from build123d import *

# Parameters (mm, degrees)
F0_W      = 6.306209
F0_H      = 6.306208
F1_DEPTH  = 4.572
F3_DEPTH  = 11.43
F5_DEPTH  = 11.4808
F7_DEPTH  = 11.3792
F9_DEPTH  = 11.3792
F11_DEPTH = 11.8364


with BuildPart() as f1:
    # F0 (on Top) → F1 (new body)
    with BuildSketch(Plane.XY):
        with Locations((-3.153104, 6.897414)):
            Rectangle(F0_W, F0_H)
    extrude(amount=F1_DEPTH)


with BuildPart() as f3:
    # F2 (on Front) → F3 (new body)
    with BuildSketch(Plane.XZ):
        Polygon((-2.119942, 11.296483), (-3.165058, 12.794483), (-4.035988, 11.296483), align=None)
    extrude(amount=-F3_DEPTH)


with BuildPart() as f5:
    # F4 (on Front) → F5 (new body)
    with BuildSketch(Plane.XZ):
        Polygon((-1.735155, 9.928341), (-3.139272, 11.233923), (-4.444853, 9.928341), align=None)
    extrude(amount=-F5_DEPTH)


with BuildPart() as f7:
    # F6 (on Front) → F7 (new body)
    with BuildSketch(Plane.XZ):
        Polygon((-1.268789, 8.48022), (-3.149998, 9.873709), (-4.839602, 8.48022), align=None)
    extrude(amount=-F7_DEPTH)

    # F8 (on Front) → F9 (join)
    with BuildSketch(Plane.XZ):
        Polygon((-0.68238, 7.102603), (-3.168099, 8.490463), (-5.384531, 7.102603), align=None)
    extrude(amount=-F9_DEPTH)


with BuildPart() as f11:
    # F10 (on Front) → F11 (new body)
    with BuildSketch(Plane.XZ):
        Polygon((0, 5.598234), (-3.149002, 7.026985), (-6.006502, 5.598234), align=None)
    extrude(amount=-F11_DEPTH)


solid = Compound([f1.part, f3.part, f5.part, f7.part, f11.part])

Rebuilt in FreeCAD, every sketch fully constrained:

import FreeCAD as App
import Part
import Sketcher
from FreeCAD import Vector
Q = App.Units.Quantity


def add_polygon(sketch, points):
    """Adds a closed chain of lines whose ends are joined by coincident constraints."""
    first, n = sketch.GeometryCount, len(points)
    for a, b in zip(points, points[1:] + points[:1]):
        sketch.addGeometry(Part.LineSegment(App.Vector(*a, 0), App.Vector(*b, 0)), False)
    for i in range(n):
        sketch.addConstraint(Sketcher.Constraint("Coincident", first + i, 2, first + (i + 1) % n, 1))

doc = App.newDocument("Part")
body = doc.addObject("PartDesign::Body", "Body")

sketch1 = doc.addObject("Sketcher::SketchObject", "Sketch")
body.addObject(sketch1)
sketch1.AttachmentSupport = (doc.XY_Plane, [""])
sketch1.MapMode = "FlatFace"
add_polygon(sketch1, [(-6.306209, 10.050518), (-6.306209, 3.74431), (0, 3.74431), (0, 10.050518)])
sketch1.addConstraint(Sketcher.Constraint("Vertical", 0))
sketch1.addConstraint(Sketcher.Constraint("Horizontal", 1))
sketch1.addConstraint(Sketcher.Constraint("Vertical", 2))
sketch1.addConstraint(Sketcher.Constraint("Horizontal", 3))
sketch1.addConstraint(Sketcher.Constraint("PointOnObject", 1, 2, -2))
sketch1.addConstraint(Sketcher.Constraint("Equal", 3, 0))
sketch1.addConstraint(Sketcher.Constraint("DistanceX", 1, 1, 1, 2, Q("6.306209 mm")))
sketch1.addConstraint(Sketcher.Constraint("DistanceY", -1, 1, 0, 2, Q("3.74431 mm")))
pad1 = doc.addObject("PartDesign::Pad", "Pad")
body.addObject(pad1)
pad1.Profile = sketch1
pad1.Length = Q("0.18 in")
body2 = doc.addObject("PartDesign::Body", "Body001")

sketch2 = doc.addObject("Sketcher::SketchObject", "Sketch001")
body2.addObject(sketch2)
sketch2.AttachmentSupport = (doc.getObject("XZ_Plane001"), [""])
sketch2.MapMode = "FlatFace"
add_polygon(sketch2, [(-2.119942, 11.296483), (-3.165058, 12.794483), (-4.035988, 11.296483)])
sketch2.addConstraint(Sketcher.Constraint("Horizontal", 2))
sketch2.addConstraint(Sketcher.Constraint("DistanceY", 1, 2, 0, 2, Q("1.498 mm")))
sketch2.addConstraint(Sketcher.Constraint("Distance", 1, Q("1.732779 mm")))
sketch2.addConstraint(Sketcher.Constraint("DistanceX", 2, 1, 2, 2, Q("1.916046 mm")))
sketch2.addConstraint(Sketcher.Constraint("DistanceX", 0, 2, -1, 1, Q("3.165058 mm")))
sketch2.addConstraint(Sketcher.Constraint("DistanceY", -1, 1, 0, 2, Q("12.794483 mm")))
pad2 = doc.addObject("PartDesign::Pad", "Pad001")
body2.addObject(pad2)
pad2.Profile = sketch2
pad2.Length = Q("0.45 in")
pad2.Reversed = True
body3 = doc.addObject("PartDesign::Body", "Body002")

sketch3 = doc.addObject("Sketcher::SketchObject", "Sketch002")
body3.addObject(sketch3)
sketch3.AttachmentSupport = (doc.getObject("XZ_Plane002"), [""])
sketch3.MapMode = "FlatFace"
add_polygon(sketch3, [(-1.735155, 9.928341), (-3.139272, 11.233923), (-4.444853, 9.928341)])
sketch3.addConstraint(Sketcher.Constraint("Horizontal", 2))
sketch3.addConstraint(Sketcher.Constraint("DistanceX", 2, 1, 2, 2, Q("2.709698 mm")))
sketch3.addConstraint(Sketcher.Constraint("Distance", 1, Q("1.846371 mm")))
sketch3.addConstraint(Sketcher.Constraint("DistanceY", -1, 1, 1, 2, Q("9.928341 mm")))
sketch3.addConstraint(Sketcher.Constraint("DistanceX", 1, 2, 0, 2, Q("1.305581 mm")))
sketch3.addConstraint(Sketcher.Constraint("DistanceX", 0, 2, -1, 1, Q("3.139272 mm")))
pad3 = doc.addObject("PartDesign::Pad", "Pad002")
body3.addObject(pad3)
pad3.Profile = sketch3
pad3.Length = Q("0.452 in")
pad3.Reversed = True
body4 = doc.addObject("PartDesign::Body", "Body003")

sketch4 = doc.addObject("Sketcher::SketchObject", "Sketch003")
body4.addObject(sketch4)
sketch4.AttachmentSupport = (doc.getObject("XZ_Plane003"), [""])
sketch4.MapMode = "FlatFace"
add_polygon(sketch4, [(-1.268789, 8.48022), (-3.149998, 9.873709), (-4.839602, 8.48022)])
sketch4.addConstraint(Sketcher.Constraint("Horizontal", 2))
sketch4.addConstraint(Sketcher.Constraint("DistanceX", 0, 2, -1, 1, Q("3.149998 mm")))
sketch4.addConstraint(Sketcher.Constraint("Distance", 1, Q("2.190108 mm")))
sketch4.addConstraint(Sketcher.Constraint("DistanceX", 2, 1, 2, 2, Q("3.570813 mm")))
sketch4.addConstraint(Sketcher.Constraint("DistanceY", -1, 1, 0, 2, Q("9.873709 mm")))
sketch4.addConstraint(Sketcher.Constraint("DistanceY", -1, 1, 1, 2, Q("8.48022 mm")))
pad4 = doc.addObject("PartDesign::Pad", "Pad003")
body4.addObject(pad4)
pad4.Profile = sketch4
pad4.Length = Q("0.448 in")
pad4.Reversed = True

sketch5 = doc.addObject("Sketcher::SketchObject", "Sketch004")
body4.addObject(sketch5)
sketch5.AttachmentSupport = (doc.getObject("XZ_Plane003"), [""])
sketch5.MapMode = "FlatFace"
add_polygon(sketch5, [(-0.68238, 7.102603), (-3.168099, 8.490463), (-5.384531, 7.102603)])
sketch5.addConstraint(Sketcher.Constraint("Horizontal", 2))
sketch5.addConstraint(Sketcher.Constraint("DistanceX", 2, 1, 2, 2, Q("4.702151 mm")))
sketch5.addConstraint(Sketcher.Constraint("DistanceX", 0, 2, -1, 1, Q("3.168099 mm")))
sketch5.addConstraint(Sketcher.Constraint("Distance", 0, Q("2.84692 mm")))
sketch5.addConstraint(Sketcher.Constraint("DistanceX", 1, 2, -1, 1, Q("5.384531 mm")))
sketch5.addConstraint(Sketcher.Constraint("DistanceY", -1, 1, 0, 2, Q("8.490463 mm")))
pad5 = doc.addObject("PartDesign::Pad", "Pad004")
body4.addObject(pad5)
pad5.Profile = sketch5
pad5.Length = Q("0.448 in")
pad5.Reversed = True
body5 = doc.addObject("PartDesign::Body", "Body004")

sketch6 = doc.addObject("Sketcher::SketchObject", "Sketch005")
body5.addObject(sketch6)
sketch6.AttachmentSupport = (doc.getObject("XZ_Plane004"), [""])
sketch6.MapMode = "FlatFace"
add_polygon(sketch6, [(0, 5.598234), (-3.149002, 7.026985), (-6.006502, 5.598234)])
sketch6.addConstraint(Sketcher.Constraint("Horizontal", 2))
sketch6.addConstraint(Sketcher.Constraint("PointOnObject", 2, 2, -2))
sketch6.addConstraint(Sketcher.Constraint("DistanceX", 1, 2, 0, 2, Q("0.1125 in")))
sketch6.addConstraint(Sketcher.Constraint("DistanceX", 0, 2, -1, 1, Q("3.149002 mm")))
sketch6.addConstraint(Sketcher.Constraint("Distance", 0, Q("3.457968 mm")))
sketch6.addConstraint(Sketcher.Constraint("DistanceY", -1, 1, 0, 2, Q("7.026985 mm")))
pad6 = doc.addObject("PartDesign::Pad", "Pad005")
body5.addObject(pad6)
pad6.Profile = sketch6
pad6.Length = Q("0.466 in")
pad6.Reversed = True

doc.recompute()
